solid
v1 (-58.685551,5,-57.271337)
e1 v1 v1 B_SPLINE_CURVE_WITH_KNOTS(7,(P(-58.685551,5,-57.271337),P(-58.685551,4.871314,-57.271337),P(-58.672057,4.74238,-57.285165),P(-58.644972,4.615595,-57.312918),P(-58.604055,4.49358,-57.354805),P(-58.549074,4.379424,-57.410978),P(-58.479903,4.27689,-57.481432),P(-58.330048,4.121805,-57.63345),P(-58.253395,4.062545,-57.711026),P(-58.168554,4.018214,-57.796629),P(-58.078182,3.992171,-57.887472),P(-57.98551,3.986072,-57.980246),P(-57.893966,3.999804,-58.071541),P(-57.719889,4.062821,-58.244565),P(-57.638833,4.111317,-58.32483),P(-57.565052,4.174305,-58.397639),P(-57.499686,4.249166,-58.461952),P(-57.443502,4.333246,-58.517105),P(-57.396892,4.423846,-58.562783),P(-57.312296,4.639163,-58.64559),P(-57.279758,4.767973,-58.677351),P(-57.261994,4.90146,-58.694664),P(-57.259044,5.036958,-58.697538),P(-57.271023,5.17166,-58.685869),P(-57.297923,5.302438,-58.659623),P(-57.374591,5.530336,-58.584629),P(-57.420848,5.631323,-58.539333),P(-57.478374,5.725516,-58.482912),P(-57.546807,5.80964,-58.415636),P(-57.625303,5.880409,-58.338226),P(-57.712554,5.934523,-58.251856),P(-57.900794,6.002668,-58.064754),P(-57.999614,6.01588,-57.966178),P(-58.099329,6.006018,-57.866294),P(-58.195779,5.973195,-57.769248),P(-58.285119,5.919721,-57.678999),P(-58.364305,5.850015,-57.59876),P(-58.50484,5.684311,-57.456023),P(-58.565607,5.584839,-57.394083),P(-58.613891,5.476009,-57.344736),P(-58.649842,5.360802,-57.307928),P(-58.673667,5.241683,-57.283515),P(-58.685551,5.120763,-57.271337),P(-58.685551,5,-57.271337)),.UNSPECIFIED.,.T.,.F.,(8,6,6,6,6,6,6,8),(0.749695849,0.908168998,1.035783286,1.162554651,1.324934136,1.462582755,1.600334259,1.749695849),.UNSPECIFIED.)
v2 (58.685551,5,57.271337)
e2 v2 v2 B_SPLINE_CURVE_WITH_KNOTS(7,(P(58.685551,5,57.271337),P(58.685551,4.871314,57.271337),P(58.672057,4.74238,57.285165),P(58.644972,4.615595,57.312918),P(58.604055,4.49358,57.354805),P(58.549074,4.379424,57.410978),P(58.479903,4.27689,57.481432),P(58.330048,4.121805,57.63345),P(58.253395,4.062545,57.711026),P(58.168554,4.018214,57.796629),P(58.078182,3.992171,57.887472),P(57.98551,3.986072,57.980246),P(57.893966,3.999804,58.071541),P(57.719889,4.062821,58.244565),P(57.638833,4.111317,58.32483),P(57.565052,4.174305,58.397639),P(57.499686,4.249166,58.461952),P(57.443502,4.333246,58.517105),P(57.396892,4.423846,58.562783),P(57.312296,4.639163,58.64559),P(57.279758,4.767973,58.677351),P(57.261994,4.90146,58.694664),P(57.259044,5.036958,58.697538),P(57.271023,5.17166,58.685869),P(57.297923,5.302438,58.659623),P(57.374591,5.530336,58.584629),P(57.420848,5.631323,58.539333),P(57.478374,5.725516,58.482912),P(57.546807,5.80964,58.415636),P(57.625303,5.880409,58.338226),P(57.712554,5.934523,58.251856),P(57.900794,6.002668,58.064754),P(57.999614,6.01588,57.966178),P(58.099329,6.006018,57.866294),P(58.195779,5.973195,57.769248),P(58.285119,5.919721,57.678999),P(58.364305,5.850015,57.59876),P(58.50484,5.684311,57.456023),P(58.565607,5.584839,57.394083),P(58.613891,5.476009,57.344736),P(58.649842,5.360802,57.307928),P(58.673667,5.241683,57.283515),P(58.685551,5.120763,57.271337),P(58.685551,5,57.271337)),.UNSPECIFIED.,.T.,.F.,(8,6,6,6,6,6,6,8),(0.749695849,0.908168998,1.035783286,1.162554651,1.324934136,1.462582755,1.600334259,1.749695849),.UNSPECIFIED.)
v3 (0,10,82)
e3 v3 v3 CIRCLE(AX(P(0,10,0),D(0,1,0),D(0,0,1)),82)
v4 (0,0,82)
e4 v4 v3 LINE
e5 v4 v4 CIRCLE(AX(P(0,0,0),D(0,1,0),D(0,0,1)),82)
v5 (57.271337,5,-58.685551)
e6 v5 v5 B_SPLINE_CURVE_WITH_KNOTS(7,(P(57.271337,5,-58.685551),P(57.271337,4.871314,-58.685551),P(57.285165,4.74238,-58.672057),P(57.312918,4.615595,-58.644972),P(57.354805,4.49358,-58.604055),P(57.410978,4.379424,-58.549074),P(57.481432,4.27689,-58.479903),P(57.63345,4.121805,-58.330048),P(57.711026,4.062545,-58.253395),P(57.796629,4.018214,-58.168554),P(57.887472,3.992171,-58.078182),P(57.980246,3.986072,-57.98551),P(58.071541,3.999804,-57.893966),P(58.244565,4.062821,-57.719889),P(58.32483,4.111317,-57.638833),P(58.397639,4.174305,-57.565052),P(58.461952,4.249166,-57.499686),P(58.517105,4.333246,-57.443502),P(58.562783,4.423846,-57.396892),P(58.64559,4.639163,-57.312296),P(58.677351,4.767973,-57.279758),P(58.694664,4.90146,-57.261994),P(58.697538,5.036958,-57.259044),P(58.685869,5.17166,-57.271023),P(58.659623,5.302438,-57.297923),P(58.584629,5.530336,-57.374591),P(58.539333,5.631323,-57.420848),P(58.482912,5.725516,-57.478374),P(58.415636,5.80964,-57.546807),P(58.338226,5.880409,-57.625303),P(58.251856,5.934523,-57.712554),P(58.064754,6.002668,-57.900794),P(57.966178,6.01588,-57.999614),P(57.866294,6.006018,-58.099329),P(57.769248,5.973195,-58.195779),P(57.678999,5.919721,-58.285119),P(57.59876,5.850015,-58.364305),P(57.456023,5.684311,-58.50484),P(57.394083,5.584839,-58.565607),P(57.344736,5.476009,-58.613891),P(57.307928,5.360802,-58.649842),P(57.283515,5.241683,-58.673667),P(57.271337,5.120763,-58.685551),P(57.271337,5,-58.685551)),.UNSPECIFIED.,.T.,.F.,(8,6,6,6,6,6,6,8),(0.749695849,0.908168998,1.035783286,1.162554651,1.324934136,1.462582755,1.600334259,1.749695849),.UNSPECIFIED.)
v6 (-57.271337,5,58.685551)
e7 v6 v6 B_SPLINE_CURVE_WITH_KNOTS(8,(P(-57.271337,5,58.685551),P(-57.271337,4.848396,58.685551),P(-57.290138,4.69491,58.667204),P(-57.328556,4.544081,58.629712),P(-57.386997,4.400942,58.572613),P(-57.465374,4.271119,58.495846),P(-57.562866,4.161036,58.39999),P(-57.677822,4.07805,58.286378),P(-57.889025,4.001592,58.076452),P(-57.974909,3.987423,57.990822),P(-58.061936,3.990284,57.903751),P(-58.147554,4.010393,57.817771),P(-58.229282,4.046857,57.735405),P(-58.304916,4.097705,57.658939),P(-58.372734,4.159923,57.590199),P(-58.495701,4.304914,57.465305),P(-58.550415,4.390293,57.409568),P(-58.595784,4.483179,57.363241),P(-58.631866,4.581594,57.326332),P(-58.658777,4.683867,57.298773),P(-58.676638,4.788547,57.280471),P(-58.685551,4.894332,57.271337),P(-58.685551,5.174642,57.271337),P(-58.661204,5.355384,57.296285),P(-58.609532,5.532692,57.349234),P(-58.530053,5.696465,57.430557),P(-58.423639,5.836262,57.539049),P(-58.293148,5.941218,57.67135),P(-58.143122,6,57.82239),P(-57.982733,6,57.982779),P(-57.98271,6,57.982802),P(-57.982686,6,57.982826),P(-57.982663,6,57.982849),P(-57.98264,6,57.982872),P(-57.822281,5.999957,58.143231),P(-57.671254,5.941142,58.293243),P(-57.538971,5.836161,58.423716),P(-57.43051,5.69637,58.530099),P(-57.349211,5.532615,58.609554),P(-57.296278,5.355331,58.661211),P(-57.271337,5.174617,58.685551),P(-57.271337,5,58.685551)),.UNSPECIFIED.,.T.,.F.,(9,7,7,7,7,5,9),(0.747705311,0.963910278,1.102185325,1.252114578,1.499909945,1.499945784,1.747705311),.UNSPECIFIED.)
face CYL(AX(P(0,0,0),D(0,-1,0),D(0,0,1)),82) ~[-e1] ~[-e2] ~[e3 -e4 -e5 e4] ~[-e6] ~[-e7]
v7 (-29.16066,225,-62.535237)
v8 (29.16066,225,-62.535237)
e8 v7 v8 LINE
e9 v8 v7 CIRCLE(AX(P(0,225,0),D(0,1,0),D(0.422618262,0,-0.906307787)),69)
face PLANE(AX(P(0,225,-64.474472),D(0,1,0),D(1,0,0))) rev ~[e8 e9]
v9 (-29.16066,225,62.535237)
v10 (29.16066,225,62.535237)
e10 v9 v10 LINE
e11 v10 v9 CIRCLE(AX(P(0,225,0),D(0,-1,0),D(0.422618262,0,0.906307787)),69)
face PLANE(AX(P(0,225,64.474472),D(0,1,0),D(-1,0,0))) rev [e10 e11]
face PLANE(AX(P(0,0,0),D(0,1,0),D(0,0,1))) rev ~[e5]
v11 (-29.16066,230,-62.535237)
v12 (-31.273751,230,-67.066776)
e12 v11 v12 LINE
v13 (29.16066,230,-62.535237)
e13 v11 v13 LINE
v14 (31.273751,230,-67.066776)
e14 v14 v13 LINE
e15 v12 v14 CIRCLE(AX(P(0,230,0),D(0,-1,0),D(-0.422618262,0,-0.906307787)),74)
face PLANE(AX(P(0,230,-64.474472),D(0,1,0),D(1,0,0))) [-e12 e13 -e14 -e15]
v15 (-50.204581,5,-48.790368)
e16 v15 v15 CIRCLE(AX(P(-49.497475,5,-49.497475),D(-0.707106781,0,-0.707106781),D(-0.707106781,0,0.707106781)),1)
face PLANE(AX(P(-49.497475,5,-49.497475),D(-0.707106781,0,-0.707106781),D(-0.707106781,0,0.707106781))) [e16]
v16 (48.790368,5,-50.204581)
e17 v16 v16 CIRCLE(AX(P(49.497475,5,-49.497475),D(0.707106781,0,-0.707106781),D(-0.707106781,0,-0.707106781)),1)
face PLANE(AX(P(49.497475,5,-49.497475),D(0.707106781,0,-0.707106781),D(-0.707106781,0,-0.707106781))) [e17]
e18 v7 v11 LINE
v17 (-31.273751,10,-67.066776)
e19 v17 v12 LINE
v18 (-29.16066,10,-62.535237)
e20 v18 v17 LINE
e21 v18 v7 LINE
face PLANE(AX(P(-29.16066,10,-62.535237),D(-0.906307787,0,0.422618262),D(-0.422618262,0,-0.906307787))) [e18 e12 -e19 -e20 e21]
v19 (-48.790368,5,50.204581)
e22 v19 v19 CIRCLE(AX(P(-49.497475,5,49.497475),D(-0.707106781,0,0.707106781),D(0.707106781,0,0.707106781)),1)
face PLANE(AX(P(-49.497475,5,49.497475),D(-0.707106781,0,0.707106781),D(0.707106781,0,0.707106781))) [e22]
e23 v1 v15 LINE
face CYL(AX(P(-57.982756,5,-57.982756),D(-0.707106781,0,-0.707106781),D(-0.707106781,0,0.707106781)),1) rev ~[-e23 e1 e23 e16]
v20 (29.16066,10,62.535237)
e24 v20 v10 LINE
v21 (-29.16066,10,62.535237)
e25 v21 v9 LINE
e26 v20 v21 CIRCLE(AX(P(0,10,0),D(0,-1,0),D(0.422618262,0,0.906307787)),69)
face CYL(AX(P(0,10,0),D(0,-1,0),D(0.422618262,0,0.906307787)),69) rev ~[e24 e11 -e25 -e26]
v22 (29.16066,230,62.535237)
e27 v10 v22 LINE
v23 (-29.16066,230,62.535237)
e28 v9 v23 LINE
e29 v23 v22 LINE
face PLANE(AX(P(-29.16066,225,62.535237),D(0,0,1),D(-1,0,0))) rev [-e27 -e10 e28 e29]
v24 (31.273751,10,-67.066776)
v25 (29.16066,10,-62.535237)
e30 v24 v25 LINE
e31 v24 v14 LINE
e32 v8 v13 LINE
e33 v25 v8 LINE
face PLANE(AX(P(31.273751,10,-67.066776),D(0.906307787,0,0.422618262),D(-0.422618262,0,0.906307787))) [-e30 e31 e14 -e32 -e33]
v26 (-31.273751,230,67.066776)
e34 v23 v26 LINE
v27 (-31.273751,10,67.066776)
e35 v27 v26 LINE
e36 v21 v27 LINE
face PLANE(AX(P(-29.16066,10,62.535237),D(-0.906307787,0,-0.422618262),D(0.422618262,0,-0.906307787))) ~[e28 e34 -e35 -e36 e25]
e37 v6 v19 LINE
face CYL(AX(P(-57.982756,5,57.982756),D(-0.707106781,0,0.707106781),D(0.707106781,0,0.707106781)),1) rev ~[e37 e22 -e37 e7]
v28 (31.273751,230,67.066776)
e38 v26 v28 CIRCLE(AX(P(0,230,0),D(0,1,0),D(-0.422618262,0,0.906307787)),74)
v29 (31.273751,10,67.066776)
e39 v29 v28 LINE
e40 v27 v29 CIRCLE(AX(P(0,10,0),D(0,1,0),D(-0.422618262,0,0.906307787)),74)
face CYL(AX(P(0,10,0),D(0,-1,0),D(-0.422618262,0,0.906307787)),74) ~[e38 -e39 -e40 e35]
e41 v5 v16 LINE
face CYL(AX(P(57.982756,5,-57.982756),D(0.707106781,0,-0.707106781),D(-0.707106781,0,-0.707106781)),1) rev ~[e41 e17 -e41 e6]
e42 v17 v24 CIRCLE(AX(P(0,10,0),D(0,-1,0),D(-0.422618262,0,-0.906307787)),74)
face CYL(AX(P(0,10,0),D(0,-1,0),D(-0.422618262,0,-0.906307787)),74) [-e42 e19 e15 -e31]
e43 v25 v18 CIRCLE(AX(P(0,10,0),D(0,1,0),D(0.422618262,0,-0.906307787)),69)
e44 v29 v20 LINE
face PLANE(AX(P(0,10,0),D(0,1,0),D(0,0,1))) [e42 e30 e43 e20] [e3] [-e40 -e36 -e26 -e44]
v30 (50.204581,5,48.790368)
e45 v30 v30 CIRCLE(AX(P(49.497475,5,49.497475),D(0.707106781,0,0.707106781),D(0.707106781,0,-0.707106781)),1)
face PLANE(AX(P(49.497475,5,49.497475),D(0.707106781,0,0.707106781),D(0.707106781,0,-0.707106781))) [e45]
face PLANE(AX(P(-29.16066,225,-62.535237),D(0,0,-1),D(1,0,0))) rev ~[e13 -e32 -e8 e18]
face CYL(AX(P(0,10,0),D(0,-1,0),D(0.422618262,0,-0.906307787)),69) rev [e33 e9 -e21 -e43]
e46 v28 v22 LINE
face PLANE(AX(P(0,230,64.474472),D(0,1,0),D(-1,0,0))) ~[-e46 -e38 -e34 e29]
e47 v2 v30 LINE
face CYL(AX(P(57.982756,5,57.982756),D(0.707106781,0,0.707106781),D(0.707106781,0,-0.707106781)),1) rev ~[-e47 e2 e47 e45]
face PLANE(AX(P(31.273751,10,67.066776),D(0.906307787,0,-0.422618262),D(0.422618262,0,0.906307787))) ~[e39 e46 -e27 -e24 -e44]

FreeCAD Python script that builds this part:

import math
import FreeCAD as App
import Part
import Sketcher
from FreeCAD import Vector
Q = App.Units.Quantity

doc = App.newDocument("Part")
params = doc.addObject("Spreadsheet::Sheet", "Params")
for row, (alias, value) in enumerate([
    ("sketch1_diameter", "164 mm"),
    ("pad1_length", "10 mm"),
    ("sketch2_radius", "69 mm"),
    ("sketch2_radius2", "74 mm"),
    ("pad2_length", "220 mm"),
    ("sketch3_radius", "69 mm"),
    ("pad3_length", "5 mm"),
    ("sketch4_diameter", "2 mm"),
    ("pocket1_length", "12 mm"),
], start=1):
    params.set(f"A{row}", alias)
    params.set(f"B{row}", "=" + value)
    params.setAlias(f"B{row}", alias)

body = doc.addObject("PartDesign::Body", "Body")

# Sketch on XZ plane
sketch1 = body.newObject("Sketcher::SketchObject", "Sketch")
sketch1.AttachmentSupport = (doc.getObject("XZ_Plane"), [""])
sketch1.MapMode = "FlatFace"
sketch1.addGeometry(Part.Circle(Vector(0, 0, 0), Vector(0, 0, 1), 82), False)
sketch1.addConstraint([
    Sketcher.Constraint("Coincident", 0, 3, -1, 1),
    Sketcher.Constraint("Diameter", 0, 164.0),
])
sketch1.setExpression("Constraints[1]", "Params.sketch1_diameter")
pad1 = body.newObject("PartDesign::Pad", "Pad")
pad1.Profile = sketch1
pad1.setExpression("Length", "Params.pad1_length")
pad1.Reversed = True

# Sketch on XZ plane
sketch2 = body.newObject("Sketcher::SketchObject", "Sketch001")
sketch2.AttachmentSupport = (doc.getObject("XZ_Plane"), [""])
sketch2.MapMode = "FlatFace"
sketch2.AttachmentOffset = App.Placement(Vector(0, 0, -10), App.Rotation())
sketch2.addGeometry([
    Part.LineSegment(Vector(-31.3, -67.1, 0), Vector(-29.2, -62.5, 0)),
    Part.ArcOfCircle(Part.Circle(Vector(0, 0, 0), Vector(0, 0, 1), 69), math.radians(-115), math.radians(-65)),
    Part.LineSegment(Vector(29.2, -62.5, 0), Vector(31.3, -67.1, 0)),
    Part.ArcOfCircle(Part.Circle(Vector(0, 0, 0), Vector(0, 0, 1), 74), math.radians(-115), math.radians(-65)),
], False)
sketch2.addConstraint([
    Sketcher.Constraint("Coincident", 0, 2, 1, 1),
    Sketcher.Constraint("Coincident", 1, 2, 2, 1),
    Sketcher.Constraint("Coincident", 2, 2, 3, 2),
    Sketcher.Constraint("Coincident", 3, 1, 0, 1),
    Sketcher.Constraint("Coincident", 1, 3, -1, 1),
    Sketcher.Constraint("Coincident", 3, 3, -1, 1),
    Sketcher.Constraint("Horizontal", 0, 2, 1, 2),
    Sketcher.Constraint("Horizontal", 2, 2, 3, 1),
    Sketcher.Constraint("Radius", 1, 69.0),
    Sketcher.Constraint("Radius", 3, 74.0),
    Sketcher.Constraint("Angle", 0, Q("65 deg")),
    Sketcher.Constraint("DistanceX", 0, 2, -1, 1, 29.16066),
])
sketch2.setExpression("Constraints[8]", "Params.sketch2_radius")
sketch2.setExpression("Constraints[9]", "Params.sketch2_radius2")
pad2 = body.newObject("PartDesign::Pad", "Pad001")
pad2.Profile = sketch2
pad2.setExpression("Length", "Params.pad2_length")
pad2.Reversed = True
doc.recompute()

mirrored = body.newObject("PartDesign::Mirrored", "Mirrored")
mirrored.Originals = [pad2]
mirrored.MirrorPlane = (doc.getObject("XY_Plane"), [""])
body.Tip = mirrored

# Sketch on XZ plane
sketch3 = body.newObject("Sketcher::SketchObject", "Sketch002")
sketch3.AttachmentSupport = (doc.getObject("XZ_Plane"), [""])
sketch3.MapMode = "FlatFace"
sketch3.AttachmentOffset = App.Placement(Vector(0, 0, -225), App.Rotation())
sketch3.addGeometry([
    Part.LineSegment(Vector(-29, -63, 0), Vector(29, -63, 0)),
    Part.ArcOfCircle(Part.Circle(Vector(0, 0, 0), Vector(0, 0, 1), 69), math.radians(-115), math.radians(-65)),
], False)
sketch3.addConstraint([
    Sketcher.Constraint("Coincident", 0, 1, 1, 1),
    Sketcher.Constraint("Coincident", 1, 2, 0, 2),
    Sketcher.Constraint("Horizontal", 0),
    Sketcher.Constraint("Coincident", 1, 3, -1, 1),
    Sketcher.Constraint("Radius", 1, 69.0),
    Sketcher.Constraint("DistanceX", 0, 1, 0, 2, 58.32132),
])
sketch3.setExpression("Constraints[4]", "Params.sketch3_radius")
pad3 = body.newObject("PartDesign::Pad", "Pad002")
pad3.Profile = sketch3
pad3.setExpression("Length", "Params.pad3_length")
pad3.Reversed = True
doc.recompute()

mirrored2 = body.newObject("PartDesign::Mirrored", "Mirrored001")
mirrored2.Originals = [pad3]
mirrored2.MirrorPlane = (doc.getObject("XY_Plane"), [""])
body.Tip = mirrored2

# Sketch on an angled plane
sketch4 = body.newObject("Sketcher::SketchObject", "Sketch003")
sketch4.Placement = App.Placement(Vector(-57.982756, 0, 57.982756), App.Rotation(Vector(0.707106781, 0, 0.707106781), Vector(0, 0.999999999, 0), Vector(-0.707106781, 0, 0.707106781), "ZXY"))
sketch4.addGeometry(Part.Circle(Vector(0, 5, 0), Vector(0, 0, 1), 1), False)
sketch4.addConstraint([
    Sketcher.Constraint("PointOnObject", 0, 3, -2),
    Sketcher.Constraint("Diameter", 0, 2.0),
    Sketcher.Constraint("DistanceY", -1, 1, 0, 3, 5.0),
])
sketch4.setExpression("Constraints[1]", "Params.sketch4_diameter")
pocket1 = body.newObject("PartDesign::Pocket", "Pocket")
pocket1.Profile = sketch4
pocket1.setExpression("Length", "Params.pocket1_length")
doc.recompute()

polarpattern = body.newObject("PartDesign::PolarPattern", "PolarPattern")
polarpattern.Originals = [pocket1]
polarpattern.Axis = (doc.getObject("Y_Axis"), [""])
polarpattern.Angle = 360
polarpattern.Occurrences = 4
body.Tip = polarpattern

doc.recompute()
